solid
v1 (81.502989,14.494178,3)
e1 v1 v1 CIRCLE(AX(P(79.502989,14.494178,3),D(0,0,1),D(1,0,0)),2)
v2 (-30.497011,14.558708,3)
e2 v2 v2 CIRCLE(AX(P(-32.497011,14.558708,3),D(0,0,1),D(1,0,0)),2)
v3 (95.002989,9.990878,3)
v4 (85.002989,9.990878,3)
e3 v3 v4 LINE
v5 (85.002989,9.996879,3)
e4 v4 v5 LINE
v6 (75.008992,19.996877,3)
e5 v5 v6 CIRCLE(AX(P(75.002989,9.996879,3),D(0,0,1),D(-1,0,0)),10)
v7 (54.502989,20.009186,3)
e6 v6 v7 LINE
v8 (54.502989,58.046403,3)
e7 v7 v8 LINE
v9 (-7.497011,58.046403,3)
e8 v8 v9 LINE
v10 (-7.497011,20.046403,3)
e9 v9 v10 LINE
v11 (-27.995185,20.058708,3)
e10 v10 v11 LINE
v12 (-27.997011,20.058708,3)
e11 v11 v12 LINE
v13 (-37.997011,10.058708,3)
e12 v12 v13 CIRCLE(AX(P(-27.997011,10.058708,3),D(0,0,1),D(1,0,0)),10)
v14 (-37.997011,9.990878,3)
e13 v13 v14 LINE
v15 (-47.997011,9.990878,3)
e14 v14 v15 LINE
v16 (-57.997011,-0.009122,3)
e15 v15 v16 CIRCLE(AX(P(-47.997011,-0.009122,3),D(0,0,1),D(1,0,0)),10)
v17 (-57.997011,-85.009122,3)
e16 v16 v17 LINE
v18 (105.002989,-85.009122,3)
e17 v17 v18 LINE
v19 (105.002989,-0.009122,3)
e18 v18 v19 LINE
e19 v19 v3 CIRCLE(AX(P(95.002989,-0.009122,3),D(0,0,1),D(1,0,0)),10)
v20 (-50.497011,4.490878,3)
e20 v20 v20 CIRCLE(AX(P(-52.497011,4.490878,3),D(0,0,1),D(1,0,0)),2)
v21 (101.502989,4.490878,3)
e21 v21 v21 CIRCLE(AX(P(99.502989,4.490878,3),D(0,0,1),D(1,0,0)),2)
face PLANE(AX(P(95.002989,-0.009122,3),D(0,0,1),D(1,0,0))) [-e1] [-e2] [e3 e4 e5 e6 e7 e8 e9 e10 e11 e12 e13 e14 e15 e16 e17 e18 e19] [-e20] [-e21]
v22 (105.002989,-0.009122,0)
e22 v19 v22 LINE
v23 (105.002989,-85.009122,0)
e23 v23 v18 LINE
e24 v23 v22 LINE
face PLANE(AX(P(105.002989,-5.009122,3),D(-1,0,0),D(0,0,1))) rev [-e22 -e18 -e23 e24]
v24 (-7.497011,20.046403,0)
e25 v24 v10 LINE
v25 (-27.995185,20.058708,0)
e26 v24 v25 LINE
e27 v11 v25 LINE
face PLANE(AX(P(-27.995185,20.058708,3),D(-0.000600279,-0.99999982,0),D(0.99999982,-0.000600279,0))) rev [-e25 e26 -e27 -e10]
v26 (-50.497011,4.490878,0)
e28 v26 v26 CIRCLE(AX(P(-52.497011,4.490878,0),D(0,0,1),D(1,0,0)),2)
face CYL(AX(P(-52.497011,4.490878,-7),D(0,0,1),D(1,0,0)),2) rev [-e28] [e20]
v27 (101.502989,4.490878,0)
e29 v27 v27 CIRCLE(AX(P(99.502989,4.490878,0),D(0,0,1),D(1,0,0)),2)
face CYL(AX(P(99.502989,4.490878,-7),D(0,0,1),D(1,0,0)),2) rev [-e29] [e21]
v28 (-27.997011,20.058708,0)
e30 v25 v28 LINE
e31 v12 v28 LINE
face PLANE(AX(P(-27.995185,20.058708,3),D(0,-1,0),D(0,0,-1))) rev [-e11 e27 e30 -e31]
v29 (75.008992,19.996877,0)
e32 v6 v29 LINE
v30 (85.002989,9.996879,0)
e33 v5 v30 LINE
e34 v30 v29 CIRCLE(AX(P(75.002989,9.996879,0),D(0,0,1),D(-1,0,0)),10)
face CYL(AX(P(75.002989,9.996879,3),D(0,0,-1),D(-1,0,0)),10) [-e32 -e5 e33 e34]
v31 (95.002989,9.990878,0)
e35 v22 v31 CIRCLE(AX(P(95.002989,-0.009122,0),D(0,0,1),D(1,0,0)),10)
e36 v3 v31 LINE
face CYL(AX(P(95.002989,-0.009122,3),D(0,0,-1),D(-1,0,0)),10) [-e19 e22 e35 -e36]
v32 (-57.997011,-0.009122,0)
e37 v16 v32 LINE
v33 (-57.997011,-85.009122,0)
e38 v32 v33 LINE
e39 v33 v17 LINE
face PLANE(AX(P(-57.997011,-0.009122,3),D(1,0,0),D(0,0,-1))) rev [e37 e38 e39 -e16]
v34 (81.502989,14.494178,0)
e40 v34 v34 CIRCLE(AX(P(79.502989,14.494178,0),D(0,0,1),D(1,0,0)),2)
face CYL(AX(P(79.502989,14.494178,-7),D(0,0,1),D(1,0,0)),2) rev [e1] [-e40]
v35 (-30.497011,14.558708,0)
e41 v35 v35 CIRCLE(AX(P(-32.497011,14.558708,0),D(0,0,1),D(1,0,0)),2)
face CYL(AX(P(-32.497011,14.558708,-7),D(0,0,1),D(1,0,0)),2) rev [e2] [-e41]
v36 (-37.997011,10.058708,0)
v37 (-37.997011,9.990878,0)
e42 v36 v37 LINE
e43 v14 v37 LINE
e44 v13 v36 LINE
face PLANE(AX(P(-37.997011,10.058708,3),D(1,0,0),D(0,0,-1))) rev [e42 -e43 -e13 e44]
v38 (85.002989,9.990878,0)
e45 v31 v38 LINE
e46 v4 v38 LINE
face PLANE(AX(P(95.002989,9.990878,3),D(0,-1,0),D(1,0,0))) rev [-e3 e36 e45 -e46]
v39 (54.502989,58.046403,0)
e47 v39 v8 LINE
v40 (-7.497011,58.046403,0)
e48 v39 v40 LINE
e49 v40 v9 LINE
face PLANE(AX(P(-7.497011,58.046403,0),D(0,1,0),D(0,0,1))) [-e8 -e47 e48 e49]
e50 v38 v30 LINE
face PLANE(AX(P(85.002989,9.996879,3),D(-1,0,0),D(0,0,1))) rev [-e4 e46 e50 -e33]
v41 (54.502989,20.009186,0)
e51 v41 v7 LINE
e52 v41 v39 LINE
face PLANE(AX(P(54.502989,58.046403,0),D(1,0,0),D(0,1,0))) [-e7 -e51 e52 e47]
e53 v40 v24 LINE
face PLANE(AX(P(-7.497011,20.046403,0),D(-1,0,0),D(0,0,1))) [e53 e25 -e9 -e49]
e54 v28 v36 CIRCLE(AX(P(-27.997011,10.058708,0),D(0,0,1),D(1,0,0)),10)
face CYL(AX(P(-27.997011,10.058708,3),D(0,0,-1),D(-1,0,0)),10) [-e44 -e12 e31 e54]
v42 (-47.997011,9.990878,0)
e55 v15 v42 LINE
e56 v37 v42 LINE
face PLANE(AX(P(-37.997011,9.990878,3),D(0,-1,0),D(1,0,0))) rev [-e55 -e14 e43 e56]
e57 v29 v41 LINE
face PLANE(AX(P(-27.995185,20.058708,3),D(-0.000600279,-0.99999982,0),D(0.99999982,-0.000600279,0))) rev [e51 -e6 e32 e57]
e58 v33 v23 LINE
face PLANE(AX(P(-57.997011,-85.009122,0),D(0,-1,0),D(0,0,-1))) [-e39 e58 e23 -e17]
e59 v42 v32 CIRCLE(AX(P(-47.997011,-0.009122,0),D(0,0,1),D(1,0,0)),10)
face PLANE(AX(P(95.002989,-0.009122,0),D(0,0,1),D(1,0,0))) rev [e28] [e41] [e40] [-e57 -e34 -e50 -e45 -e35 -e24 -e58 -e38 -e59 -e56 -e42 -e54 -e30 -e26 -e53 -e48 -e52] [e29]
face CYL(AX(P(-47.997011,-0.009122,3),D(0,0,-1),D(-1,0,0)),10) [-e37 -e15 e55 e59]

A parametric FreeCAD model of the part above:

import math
import FreeCAD as App
import Part
import Sketcher
from FreeCAD import Vector
Q = App.Units.Quantity


def add_polygon(sketch, points):
    """Adds a closed chain of lines whose ends are joined by coincident constraints."""
    first, n = sketch.GeometryCount, len(points)
    for a, b in zip(points, points[1:] + points[:1]):
        sketch.addGeometry(Part.LineSegment(App.Vector(*a, 0), App.Vector(*b, 0)), False)
    for i in range(n):
        sketch.addConstraint(Sketcher.Constraint("Coincident", first + i, 2, first + (i + 1) % n, 1))

doc = App.newDocument("Part")
body = doc.addObject("PartDesign::Body", "Body")

sketch1 = doc.addObject("Sketcher::SketchObject", "Sketch")
body.addObject(sketch1)
sketch1.AttachmentSupport = (doc.XY_Plane, [""])
sketch1.MapMode = "FlatFace"
sketch1.addGeometry(Part.LineSegment(Vector(-57.997, -5.0091, 0), Vector(105.003, -5.0091, 0)), False)
sketch1.addGeometry(Part.LineSegment(Vector(105.003, -5.0091, 0), Vector(105.003, -0.0091, 0)), False)
sketch1.addGeometry(Part.ArcOfCircle(Part.Circle(Vector(95.003, -0.0091, 0), Vector(0, 0, 1), 10), math.radians(0), math.radians(90)), False)
sketch1.addGeometry(Part.LineSegment(Vector(95.003, 9.9909, 0), Vector(85.003, 9.9909, 0)), False)
sketch1.addGeometry(Part.LineSegment(Vector(85.003, 9.9909, 0), Vector(85.003, 9.9969, 0)), False)
sketch1.addGeometry(Part.ArcOfCircle(Part.Circle(Vector(75.003, 9.9969, 0), Vector(0, 0, 1), 10), math.radians(0), math.radians(90)), False)
sketch1.addGeometry(Part.LineSegment(Vector(75.009, 19.9969, 0), Vector(-27.9952, 20.0587, 0)), False)
sketch1.addGeometry(Part.LineSegment(Vector(-27.9952, 20.0587, 0), Vector(-27.997, 20.0587, 0)), False)
sketch1.addGeometry(Part.ArcOfCircle(Part.Circle(Vector(-27.997, 10.0587, 0), Vector(0, 0, 1), 10), math.radians(90), math.radians(180)), False)
sketch1.addGeometry(Part.LineSegment(Vector(-37.997, 10.0587, 0), Vector(-37.997, 9.9909, 0)), False)
sketch1.addGeometry(Part.LineSegment(Vector(-37.997, 9.9909, 0), Vector(-47.997, 9.9909, 0)), False)
sketch1.addGeometry(Part.ArcOfCircle(Part.Circle(Vector(-47.997, -0.0091, 0), Vector(0, 0, 1), 10), math.radians(90), math.radians(180)), False)
sketch1.addGeometry(Part.LineSegment(Vector(-57.997, -0.0091, 0), Vector(-57.997, -5.0091, 0)), False)
sketch1.addConstraint(Sketcher.Constraint("Coincident", 0, 2, 1, 1))
sketch1.addConstraint(Sketcher.Constraint("Tangent", 1, 2, 2, 1))
sketch1.addConstraint(Sketcher.Constraint("Tangent", 2, 2, 3, 1))
sketch1.addConstraint(Sketcher.Constraint("Coincident", 3, 2, 4, 1))
sketch1.addConstraint(Sketcher.Constraint("Tangent", 4, 2, 5, 1))
sketch1.addConstraint(Sketcher.Constraint("Tangent", 5, 2, 6, 1))
sketch1.addConstraint(Sketcher.Constraint("Coincident", 6, 2, 7, 1))
sketch1.addConstraint(Sketcher.Constraint("Tangent", 7, 2, 8, 1))
sketch1.addConstraint(Sketcher.Constraint("Tangent", 8, 2, 9, 1))
sketch1.addConstraint(Sketcher.Constraint("Coincident", 9, 2, 10, 1))
sketch1.addConstraint(Sketcher.Constraint("Tangent", 10, 2, 11, 1))
sketch1.addConstraint(Sketcher.Constraint("Tangent", 11, 2, 12, 1))
sketch1.addConstraint(Sketcher.Constraint("Coincident", 12, 2, 0, 1))
sketch1.addConstraint(Sketcher.Constraint("Horizontal", 0))
sketch1.addConstraint(Sketcher.Constraint("Vertical", 1))
sketch1.addConstraint(Sketcher.Constraint("Horizontal", 3))
sketch1.addConstraint(Sketcher.Constraint("Vertical", 9))
sketch1.addConstraint(Sketcher.Constraint("Horizontal", 10))
sketch1.addConstraint(Sketcher.Constraint("Vertical", 12))
sketch1.addConstraint(Sketcher.Constraint("Equal", 2, 5))
sketch1.addConstraint(Sketcher.Constraint("Equal", 5, 8))
sketch1.addConstraint(Sketcher.Constraint("Equal", 8, 11))
sketch1.addConstraint(Sketcher.Constraint("Horizontal", 2, 3, 11, 3))
sketch1.addConstraint(Sketcher.Constraint("Horizontal", 5, 3, 4, 2))
sketch1.addConstraint(Sketcher.Constraint("Vertical", 8, 3, 7, 2))
sketch1.addConstraint(Sketcher.Constraint("Equal", 3, 10))
sketch1.addConstraint(Sketcher.Constraint("Radius", 2, Q("10 mm")))
sketch1.addConstraint(Sketcher.Constraint("DistanceX", 0, 1, 0, 2, Q("163 mm")))
sketch1.addConstraint(Sketcher.Constraint("DistanceX", 3, 2, 3, 1, Q("10 mm")))
sketch1.addConstraint(Sketcher.Constraint("DistanceY", 1, 1, 1, 2, Q("5 mm")))
sketch1.addConstraint(Sketcher.Constraint("DistanceY", 4, 1, 4, 2, Q("0.006001 mm")))
sketch1.addConstraint(Sketcher.Constraint("DistanceY", 9, 2, 9, 1, Q("0.06783 mm")))
sketch1.addConstraint(Sketcher.Constraint("DistanceX", 7, 2, 7, 1, Q("0.001826 mm")))
sketch1.addConstraint(Sketcher.Constraint("DistanceX", -1, 1, 2, 3, Q("95.002989 mm")))
sketch1.addConstraint(Sketcher.Constraint("DistanceY", -1, 1, 5, 3, Q("9.996879 mm")))
pad1 = doc.addObject("PartDesign::Pad", "Pad")
body.addObject(pad1)
pad1.Profile = sketch1
pad1.Length = 3

sketch2 = doc.addObject("Sketcher::SketchObject", "Sketch001")
body.addObject(sketch2)
sketch2.AttachmentSupport = (doc.XY_Plane, [""])
sketch2.MapMode = "FlatFace"
sketch2.AttachmentOffset = App.Placement(Vector(0, 0, 3), App.Rotation())
sketch2.addGeometry(Part.Circle(Vector(-32.5, 14.6, 0), Vector(0, 0, 1), 2), False)
sketch2.addGeometry(Part.Circle(Vector(79.5, 14.5, 0), Vector(0, 0, 1), 2), False)
sketch2.addGeometry(Part.Circle(Vector(99.5, 4.5, 0), Vector(0, 0, 1), 2), False)
sketch2.addGeometry(Part.Circle(Vector(-52.5, 4.5, 0), Vector(0, 0, 1), 2), False)
sketch2.addConstraint(Sketcher.Constraint("Equal", 0, 1))
sketch2.addConstraint(Sketcher.Constraint("Equal", 1, 2))
sketch2.addConstraint(Sketcher.Constraint("Equal", 2, 3))
sketch2.addConstraint(Sketcher.Constraint("Horizontal", 2, 3, 3, 3))
sketch2.addConstraint(Sketcher.Constraint("Diameter", 0, Q("4 mm")))
sketch2.addConstraint(Sketcher.Constraint("DistanceX", 0, 3, 1, 3, Q("112 mm")))
sketch2.addConstraint(Sketcher.Constraint("DistanceX", 1, 3, 2, 3, Q("20 mm")))
sketch2.addConstraint(Sketcher.Constraint("DistanceX", 3, 3, 0, 3, Q("20 mm")))
sketch2.addConstraint(Sketcher.Constraint("DistanceY", 2, 3, 1, 3, Q("10.003301 mm")))
sketch2.addConstraint(Sketcher.Constraint("DistanceX", 0, 3, -1, 1, Q("32.497011 mm")))
sketch2.addConstraint(Sketcher.Constraint("DistanceY", -1, 1, 0, 3, Q("14.558708 mm")))
sketch2.addConstraint(Sketcher.Constraint("DistanceY", -1, 1, 1, 3, Q("14.494178 mm")))
pocket1 = doc.addObject("PartDesign::Pocket", "Pocket")
body.addObject(pocket1)
pocket1.Profile = sketch2
pocket1.Length = 10

sketch3 = doc.addObject("Sketcher::SketchObject", "Sketch002")
body.addObject(sketch3)
sketch3.AttachmentSupport = (doc.XY_Plane, [""])
sketch3.MapMode = "FlatFace"
sketch3.AttachmentOffset = App.Placement(Vector(0, 0, 3), App.Rotation())
add_polygon(sketch3, [(-7, 58), (-7, 20), (55, 20), (55, 58)])
sketch3.addConstraint(Sketcher.Constraint("Vertical", 0))
sketch3.addConstraint(Sketcher.Constraint("Vertical", 2))
sketch3.addConstraint(Sketcher.Constraint("Horizontal", 3))
sketch3.addConstraint(Sketcher.Constraint("DistanceX", 3, 2, 3, 1, Q("62 mm")))
sketch3.addConstraint(Sketcher.Constraint("DistanceY", 0, 2, 0, 1, Q("38 mm")))
sketch3.addConstraint(Sketcher.Constraint("DistanceY", 2, 1, 2, 2, Q("38.037217 mm")))
sketch3.addConstraint(Sketcher.Constraint("DistanceX", 0, 2, -1, 1, Q("7.497011 mm")))
sketch3.addConstraint(Sketcher.Constraint("DistanceY", -1, 1, 0, 2, Q("20.046403 mm")))
pad2 = doc.addObject("PartDesign::Pad", "Pad001")
body.addObject(pad2)
pad2.Profile = sketch3
pad2.Length = 3
pad2.Reversed = True

sketch4 = doc.addObject("Sketcher::SketchObject", "Sketch003")
body.addObject(sketch4)
sketch4.AttachmentSupport = (doc.XY_Plane, [""])
sketch4.MapMode = "FlatFace"
sketch4.AttachmentOffset = App.Placement(Vector(0, 0, 3), App.Rotation())
add_polygon(sketch4, [(-58, -5), (-58, -85), (105, -85), (105, -5)])
sketch4.addConstraint(Sketcher.Constraint("Vertical", 0))
sketch4.addConstraint(Sketcher.Constraint("Horizontal", 1))
sketch4.addConstraint(Sketcher.Constraint("Vertical", 2))
sketch4.addConstraint(Sketcher.Constraint("Horizontal", 3))
sketch4.addConstraint(Sketcher.Constraint("DistanceX", 1, 1, 1, 2, Q("163 mm")))
sketch4.addConstraint(Sketcher.Constraint("DistanceY", 0, 2, 0, 1, Q("80 mm")))
sketch4.addConstraint(Sketcher.Constraint("DistanceX", 0, 2, -1, 1, Q("57.997011 mm")))
sketch4.addConstraint(Sketcher.Constraint("DistanceY", 0, 2, -1, 1, Q("85.009122 mm")))
pad3 = doc.addObject("PartDesign::Pad", "Pad002")
body.addObject(pad3)
pad3.Profile = sketch4
pad3.Length = 3
pad3.Reversed = True

doc.recompute()
